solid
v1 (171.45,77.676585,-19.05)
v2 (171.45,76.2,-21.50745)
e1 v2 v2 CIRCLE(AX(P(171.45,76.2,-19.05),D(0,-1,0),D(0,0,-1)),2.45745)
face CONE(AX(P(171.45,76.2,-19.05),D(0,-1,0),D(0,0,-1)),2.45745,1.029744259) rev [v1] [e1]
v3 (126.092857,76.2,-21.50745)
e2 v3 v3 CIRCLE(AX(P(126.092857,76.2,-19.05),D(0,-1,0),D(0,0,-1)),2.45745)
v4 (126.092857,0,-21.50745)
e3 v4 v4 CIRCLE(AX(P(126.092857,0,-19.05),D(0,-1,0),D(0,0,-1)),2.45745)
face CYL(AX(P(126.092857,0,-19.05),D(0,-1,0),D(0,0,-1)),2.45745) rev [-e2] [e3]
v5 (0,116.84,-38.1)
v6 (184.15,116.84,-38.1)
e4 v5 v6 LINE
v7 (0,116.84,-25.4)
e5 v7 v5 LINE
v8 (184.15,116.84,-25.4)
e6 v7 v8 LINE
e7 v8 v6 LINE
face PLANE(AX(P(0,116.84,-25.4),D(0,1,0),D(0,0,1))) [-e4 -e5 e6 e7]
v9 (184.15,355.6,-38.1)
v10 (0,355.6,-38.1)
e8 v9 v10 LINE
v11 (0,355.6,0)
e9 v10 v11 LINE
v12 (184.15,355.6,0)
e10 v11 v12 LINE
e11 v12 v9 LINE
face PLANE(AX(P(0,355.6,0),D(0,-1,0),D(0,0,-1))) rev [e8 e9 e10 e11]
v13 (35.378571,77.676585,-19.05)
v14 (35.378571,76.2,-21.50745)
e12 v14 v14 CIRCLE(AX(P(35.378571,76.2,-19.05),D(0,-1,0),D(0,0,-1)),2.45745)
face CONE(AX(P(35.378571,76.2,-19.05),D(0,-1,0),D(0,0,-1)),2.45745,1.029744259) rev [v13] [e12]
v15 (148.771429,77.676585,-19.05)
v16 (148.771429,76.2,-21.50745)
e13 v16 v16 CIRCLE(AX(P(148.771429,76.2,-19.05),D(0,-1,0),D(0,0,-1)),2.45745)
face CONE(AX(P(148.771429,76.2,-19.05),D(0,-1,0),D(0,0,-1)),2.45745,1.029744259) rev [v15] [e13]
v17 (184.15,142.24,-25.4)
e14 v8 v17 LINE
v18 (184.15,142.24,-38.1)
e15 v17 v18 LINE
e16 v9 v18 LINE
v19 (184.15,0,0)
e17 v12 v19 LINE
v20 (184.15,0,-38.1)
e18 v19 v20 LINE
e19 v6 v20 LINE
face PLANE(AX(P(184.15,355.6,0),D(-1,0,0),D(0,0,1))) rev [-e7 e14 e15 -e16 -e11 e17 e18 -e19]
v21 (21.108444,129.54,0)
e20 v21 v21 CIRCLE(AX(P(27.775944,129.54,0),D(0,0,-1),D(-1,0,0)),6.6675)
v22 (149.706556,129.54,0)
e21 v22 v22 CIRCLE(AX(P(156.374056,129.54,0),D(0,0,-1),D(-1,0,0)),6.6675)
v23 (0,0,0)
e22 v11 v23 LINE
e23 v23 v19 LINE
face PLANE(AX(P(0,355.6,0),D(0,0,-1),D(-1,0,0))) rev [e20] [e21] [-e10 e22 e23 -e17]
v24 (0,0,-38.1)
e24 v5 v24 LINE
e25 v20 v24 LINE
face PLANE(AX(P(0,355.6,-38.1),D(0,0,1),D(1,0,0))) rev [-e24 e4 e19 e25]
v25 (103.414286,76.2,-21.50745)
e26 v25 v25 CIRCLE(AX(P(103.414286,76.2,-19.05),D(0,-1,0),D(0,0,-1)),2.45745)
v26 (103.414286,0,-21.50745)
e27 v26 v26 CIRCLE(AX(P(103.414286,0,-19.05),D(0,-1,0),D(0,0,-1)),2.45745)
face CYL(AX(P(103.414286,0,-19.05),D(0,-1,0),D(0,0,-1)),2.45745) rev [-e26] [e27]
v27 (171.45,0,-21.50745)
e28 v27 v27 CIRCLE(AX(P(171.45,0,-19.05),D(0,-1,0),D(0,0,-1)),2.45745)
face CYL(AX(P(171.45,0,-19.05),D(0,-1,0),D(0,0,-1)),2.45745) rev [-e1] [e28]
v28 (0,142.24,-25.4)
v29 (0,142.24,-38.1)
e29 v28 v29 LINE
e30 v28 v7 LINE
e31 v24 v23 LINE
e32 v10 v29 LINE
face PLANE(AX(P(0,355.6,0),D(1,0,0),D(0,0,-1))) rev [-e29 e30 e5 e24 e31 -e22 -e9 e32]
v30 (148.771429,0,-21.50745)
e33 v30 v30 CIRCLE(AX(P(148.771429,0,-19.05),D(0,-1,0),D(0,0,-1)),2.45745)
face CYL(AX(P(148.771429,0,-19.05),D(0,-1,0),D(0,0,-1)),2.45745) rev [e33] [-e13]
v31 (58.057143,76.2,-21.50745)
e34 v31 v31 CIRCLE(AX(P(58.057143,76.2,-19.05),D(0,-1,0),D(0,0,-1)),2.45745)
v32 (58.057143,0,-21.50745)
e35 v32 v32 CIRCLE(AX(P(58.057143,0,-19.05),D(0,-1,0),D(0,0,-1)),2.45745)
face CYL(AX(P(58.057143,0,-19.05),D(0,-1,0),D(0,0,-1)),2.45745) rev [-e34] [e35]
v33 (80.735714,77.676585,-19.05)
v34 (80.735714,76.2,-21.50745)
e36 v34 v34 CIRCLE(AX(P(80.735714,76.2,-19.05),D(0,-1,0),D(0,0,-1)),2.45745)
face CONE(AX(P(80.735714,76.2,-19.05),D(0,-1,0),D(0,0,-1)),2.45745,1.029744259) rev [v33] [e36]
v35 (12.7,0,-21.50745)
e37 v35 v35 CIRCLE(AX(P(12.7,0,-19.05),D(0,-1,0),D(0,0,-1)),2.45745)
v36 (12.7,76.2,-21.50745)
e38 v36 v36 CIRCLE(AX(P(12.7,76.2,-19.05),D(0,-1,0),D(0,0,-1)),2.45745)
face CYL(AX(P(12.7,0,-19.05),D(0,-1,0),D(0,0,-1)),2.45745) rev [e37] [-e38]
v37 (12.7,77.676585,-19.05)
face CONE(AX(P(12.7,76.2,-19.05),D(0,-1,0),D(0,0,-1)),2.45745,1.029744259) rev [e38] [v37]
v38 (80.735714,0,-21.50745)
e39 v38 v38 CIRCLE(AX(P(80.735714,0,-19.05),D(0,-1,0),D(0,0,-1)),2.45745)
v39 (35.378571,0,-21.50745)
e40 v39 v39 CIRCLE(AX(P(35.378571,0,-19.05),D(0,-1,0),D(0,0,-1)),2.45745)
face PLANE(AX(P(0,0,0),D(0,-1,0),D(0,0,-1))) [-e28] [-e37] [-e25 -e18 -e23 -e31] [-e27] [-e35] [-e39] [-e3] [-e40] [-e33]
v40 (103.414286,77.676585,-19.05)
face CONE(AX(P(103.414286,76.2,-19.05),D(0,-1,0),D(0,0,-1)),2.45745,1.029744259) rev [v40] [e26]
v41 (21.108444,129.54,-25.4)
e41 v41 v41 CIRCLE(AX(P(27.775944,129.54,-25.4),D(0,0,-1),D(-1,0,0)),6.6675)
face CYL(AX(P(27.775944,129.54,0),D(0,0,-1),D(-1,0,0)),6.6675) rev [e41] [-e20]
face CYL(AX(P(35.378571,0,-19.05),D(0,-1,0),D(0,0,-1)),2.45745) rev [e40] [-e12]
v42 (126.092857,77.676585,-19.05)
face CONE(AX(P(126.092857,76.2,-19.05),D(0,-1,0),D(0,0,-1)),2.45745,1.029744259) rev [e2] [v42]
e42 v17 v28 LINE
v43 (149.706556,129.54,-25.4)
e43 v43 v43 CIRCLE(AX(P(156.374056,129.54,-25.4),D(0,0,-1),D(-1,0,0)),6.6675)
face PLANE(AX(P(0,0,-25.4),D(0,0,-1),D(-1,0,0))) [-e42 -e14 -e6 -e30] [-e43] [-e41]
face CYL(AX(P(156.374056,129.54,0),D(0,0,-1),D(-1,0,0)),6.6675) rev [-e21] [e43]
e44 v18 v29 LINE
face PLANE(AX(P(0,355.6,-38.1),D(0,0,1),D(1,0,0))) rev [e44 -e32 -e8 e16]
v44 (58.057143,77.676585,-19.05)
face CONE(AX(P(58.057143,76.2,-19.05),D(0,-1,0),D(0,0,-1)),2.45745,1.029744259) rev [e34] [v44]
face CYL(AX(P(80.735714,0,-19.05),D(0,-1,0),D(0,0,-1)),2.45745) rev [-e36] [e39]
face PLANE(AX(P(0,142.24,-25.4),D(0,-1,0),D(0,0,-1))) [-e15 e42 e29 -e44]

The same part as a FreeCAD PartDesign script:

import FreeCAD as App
import Part
import Sketcher
Q = App.Units.Quantity

doc = App.newDocument("Part")
body = doc.addObject("PartDesign::Body", "Body")

sketch1 = body.newObject("Sketcher::SketchObject", "Sketch")
sketch1.AttachmentSupport = (doc.getObject("XZ_Plane"), [""])
sketch1.MapMode = "FlatFace"
sketch1.addGeometry([
    Part.LineSegment(App.Vector(0, -38.1, 0), App.Vector(0, 0, 0)),
    Part.LineSegment(App.Vector(0, 0, 0), App.Vector(184.15, 0, 0)),
    Part.LineSegment(App.Vector(184.15, 0, 0), App.Vector(184.15, -38.1, 0)),
    Part.LineSegment(App.Vector(184.15, -38.1, 0), App.Vector(0, -38.1, 0)),
], False)
sketch1.addConstraint([
    Sketcher.Constraint("Coincident", 0, 2, 1, 1),
    Sketcher.Constraint("Coincident", 1, 2, 2, 1),
    Sketcher.Constraint("Coincident", 2, 2, 3, 1),
    Sketcher.Constraint("Coincident", 3, 2, 0, 1),
    Sketcher.Constraint("Vertical", 0),
    Sketcher.Constraint("Horizontal", 1),
    Sketcher.Constraint("Vertical", 2),
    Sketcher.Constraint("Horizontal", 3),
    Sketcher.Constraint("Coincident", 0, 2, -1, 1),
    Sketcher.Constraint("DistanceY", 0, 1, 0, 2, Q("1.5 in")),
    Sketcher.Constraint("DistanceX", 1, 1, 1, 2, Q("7.25 in")),
])
pad1 = body.newObject("PartDesign::Pad", "Pad")
pad1.Profile = sketch1
pad1.Length = Q("14 in")
pad1.Reversed = True

sketch2 = body.newObject("Sketcher::SketchObject", "Sketch001")
sketch2.AttachmentSupport = (doc.getObject("XY_Plane"), [""])
sketch2.MapMode = "FlatFace"
sketch2.AttachmentOffset = App.Placement(App.Vector(0, 0, -1.5 * 25.4), App.Rotation())
sketch2.addGeometry([
    Part.LineSegment(App.Vector(0, 142.24, 0), App.Vector(0, 116.84, 0)),
    Part.LineSegment(App.Vector(0, 116.84, 0), App.Vector(184.15, 116.84, 0)),
    Part.LineSegment(App.Vector(184.15, 116.84, 0), App.Vector(184.15, 142.24, 0)),
    Part.LineSegment(App.Vector(184.15, 142.24, 0), App.Vector(0, 142.24, 0)),
], False)
sketch2.addConstraint([
    Sketcher.Constraint("Coincident", 0, 2, 1, 1),
    Sketcher.Constraint("Coincident", 1, 2, 2, 1),
    Sketcher.Constraint("Coincident", 2, 2, 3, 1),
    Sketcher.Constraint("Coincident", 3, 2, 0, 1),
    Sketcher.Constraint("Vertical", 0),
    Sketcher.Constraint("Horizontal", 1),
    Sketcher.Constraint("Vertical", 2),
    Sketcher.Constraint("Horizontal", 3),
    Sketcher.Constraint("PointOnObject", 0, 2, -2),
    Sketcher.Constraint("DistanceY", 0, 2, 0, 1, Q("1 in")),
    Sketcher.Constraint("DistanceX", 1, 1, 1, 2, Q("7.25 in")),
    Sketcher.Constraint("DistanceY", -1, 1, 0, 2, Q("4.6 in")),
])
pocket1 = body.newObject("PartDesign::Pocket", "Pocket")
pocket1.Profile = sketch2
pocket1.Length = Q("0.5 in")
pocket1.Reversed = True

sketch3 = body.newObject("Sketcher::SketchObject", "Sketch002")
sketch3.AttachmentSupport = (doc.getObject("XY_Plane"), [""])
sketch3.MapMode = "FlatFace"
sketch3.AttachmentOffset = App.Placement(App.Vector(0, 0, -1 * 25.4), App.Rotation())
sketch3.addGeometry([
    Part.Circle(App.Vector(156.374056, 129.54, 0), App.Vector(0, 0, 1), 6.6675),
    Part.Circle(App.Vector(27.775944, 129.54, 0), App.Vector(0, 0, 1), 6.6675),
], False)
sketch3.addConstraint([
    Sketcher.Constraint("Equal", 0, 1),
    Sketcher.Constraint("Horizontal", 0, 3, 1, 3),
    Sketcher.Constraint("Diameter", 0, Q("0.525 in")),
    Sketcher.Constraint("DistanceY", -1, 1, 0, 3, Q("5.1 in")),
    Sketcher.Constraint("DistanceX", -1, 1, 0, 3, 156.374056),
    Sketcher.Constraint("DistanceX", -1, 1, 1, 3, 27.775944),
])
pocket2 = body.newObject("PartDesign::Pocket", "Pocket001")
pocket2.Profile = sketch3
pocket2.Type = "ThroughAll"
pocket2.Midplane = True

sketch4 = body.newObject("Sketcher::SketchObject", "Sketch003")
sketch4.AttachmentSupport = (doc.getObject("XZ_Plane"), [""])
sketch4.MapMode = "FlatFace"
sketch4.addGeometry([
    Part.Circle(App.Vector(12.7, -19.05, 0), App.Vector(0, 0, 1), 2.45745),
    Part.Circle(App.Vector(35.378571, -19.05, 0), App.Vector(0, 0, 1), 2.45745),
    Part.Circle(App.Vector(58.057143, -19.05, 0), App.Vector(0, 0, 1), 2.45745),
    Part.Circle(App.Vector(80.735714, -19.05, 0), App.Vector(0, 0, 1), 2.45745),
    Part.Circle(App.Vector(103.414286, -19.05, 0), App.Vector(0, 0, 1), 2.45745),
    Part.Circle(App.Vector(126.092857, -19.05, 0), App.Vector(0, 0, 1), 2.45745),
    Part.Circle(App.Vector(148.771429, -19.05, 0), App.Vector(0, 0, 1), 2.45745),
    Part.Circle(App.Vector(171.45, -19.05, 0), App.Vector(0, 0, 1), 2.45745),
], False)
sketch4.addConstraint([
    Sketcher.Constraint("Equal", 0, 1),
    Sketcher.Constraint("Equal", 1, 2),
    Sketcher.Constraint("Equal", 2, 3),
    Sketcher.Constraint("Equal", 3, 4),
    Sketcher.Constraint("Equal", 4, 5),
    Sketcher.Constraint("Equal", 5, 6),
    Sketcher.Constraint("Equal", 6, 7),
    Sketcher.Constraint("Horizontal", 0, 3, 1, 3),
    Sketcher.Constraint("Horizontal", 1, 3, 2, 3),
    Sketcher.Constraint("Horizontal", 2, 3, 3, 3),
    Sketcher.Constraint("Horizontal", 3, 3, 4, 3),
    Sketcher.Constraint("Horizontal", 4, 3, 5, 3),
    Sketcher.Constraint("Horizontal", 5, 3, 6, 3),
    Sketcher.Constraint("Horizontal", 6, 3, 7, 3),
    Sketcher.Constraint("Diameter", 0, Q("0.1935 in")),
    Sketcher.Constraint("DistanceX", -1, 1, 0, 3, Q("0.5 in")),
    Sketcher.Constraint("DistanceY", 0, 3, -1, 1, Q("0.75 in")),
    Sketcher.Constraint("DistanceX", -1, 1, 7, 3, Q("6.75 in")),
    Sketcher.Constraint("DistanceX", -1, 1, 1, 3, 35.378571),
    Sketcher.Constraint("DistanceX", -1, 1, 6, 3, 148.771429),
    Sketcher.Constraint("DistanceX", 1, 3, 2, 3, 22.678571),
    Sketcher.Constraint("DistanceX", 2, 3, 3, 3, 22.678571),
    Sketcher.Constraint("DistanceX", 3, 3, 4, 3, 22.678571),
    Sketcher.Constraint("DistanceX", 4, 3, 5, 3, 22.678571),
])
doc.recompute()
hole = body.newObject("PartDesign::Hole", "Hole")
hole.Profile = sketch4
hole.ThreadType = "None"
hole.Diameter = Q("0.1935 in")
hole.DepthType = "Dimension"
hole.Depth = Q("3 in")
hole.DrillPoint = "Angled"
hole.DrillPointAngle = 118

doc.recompute()
